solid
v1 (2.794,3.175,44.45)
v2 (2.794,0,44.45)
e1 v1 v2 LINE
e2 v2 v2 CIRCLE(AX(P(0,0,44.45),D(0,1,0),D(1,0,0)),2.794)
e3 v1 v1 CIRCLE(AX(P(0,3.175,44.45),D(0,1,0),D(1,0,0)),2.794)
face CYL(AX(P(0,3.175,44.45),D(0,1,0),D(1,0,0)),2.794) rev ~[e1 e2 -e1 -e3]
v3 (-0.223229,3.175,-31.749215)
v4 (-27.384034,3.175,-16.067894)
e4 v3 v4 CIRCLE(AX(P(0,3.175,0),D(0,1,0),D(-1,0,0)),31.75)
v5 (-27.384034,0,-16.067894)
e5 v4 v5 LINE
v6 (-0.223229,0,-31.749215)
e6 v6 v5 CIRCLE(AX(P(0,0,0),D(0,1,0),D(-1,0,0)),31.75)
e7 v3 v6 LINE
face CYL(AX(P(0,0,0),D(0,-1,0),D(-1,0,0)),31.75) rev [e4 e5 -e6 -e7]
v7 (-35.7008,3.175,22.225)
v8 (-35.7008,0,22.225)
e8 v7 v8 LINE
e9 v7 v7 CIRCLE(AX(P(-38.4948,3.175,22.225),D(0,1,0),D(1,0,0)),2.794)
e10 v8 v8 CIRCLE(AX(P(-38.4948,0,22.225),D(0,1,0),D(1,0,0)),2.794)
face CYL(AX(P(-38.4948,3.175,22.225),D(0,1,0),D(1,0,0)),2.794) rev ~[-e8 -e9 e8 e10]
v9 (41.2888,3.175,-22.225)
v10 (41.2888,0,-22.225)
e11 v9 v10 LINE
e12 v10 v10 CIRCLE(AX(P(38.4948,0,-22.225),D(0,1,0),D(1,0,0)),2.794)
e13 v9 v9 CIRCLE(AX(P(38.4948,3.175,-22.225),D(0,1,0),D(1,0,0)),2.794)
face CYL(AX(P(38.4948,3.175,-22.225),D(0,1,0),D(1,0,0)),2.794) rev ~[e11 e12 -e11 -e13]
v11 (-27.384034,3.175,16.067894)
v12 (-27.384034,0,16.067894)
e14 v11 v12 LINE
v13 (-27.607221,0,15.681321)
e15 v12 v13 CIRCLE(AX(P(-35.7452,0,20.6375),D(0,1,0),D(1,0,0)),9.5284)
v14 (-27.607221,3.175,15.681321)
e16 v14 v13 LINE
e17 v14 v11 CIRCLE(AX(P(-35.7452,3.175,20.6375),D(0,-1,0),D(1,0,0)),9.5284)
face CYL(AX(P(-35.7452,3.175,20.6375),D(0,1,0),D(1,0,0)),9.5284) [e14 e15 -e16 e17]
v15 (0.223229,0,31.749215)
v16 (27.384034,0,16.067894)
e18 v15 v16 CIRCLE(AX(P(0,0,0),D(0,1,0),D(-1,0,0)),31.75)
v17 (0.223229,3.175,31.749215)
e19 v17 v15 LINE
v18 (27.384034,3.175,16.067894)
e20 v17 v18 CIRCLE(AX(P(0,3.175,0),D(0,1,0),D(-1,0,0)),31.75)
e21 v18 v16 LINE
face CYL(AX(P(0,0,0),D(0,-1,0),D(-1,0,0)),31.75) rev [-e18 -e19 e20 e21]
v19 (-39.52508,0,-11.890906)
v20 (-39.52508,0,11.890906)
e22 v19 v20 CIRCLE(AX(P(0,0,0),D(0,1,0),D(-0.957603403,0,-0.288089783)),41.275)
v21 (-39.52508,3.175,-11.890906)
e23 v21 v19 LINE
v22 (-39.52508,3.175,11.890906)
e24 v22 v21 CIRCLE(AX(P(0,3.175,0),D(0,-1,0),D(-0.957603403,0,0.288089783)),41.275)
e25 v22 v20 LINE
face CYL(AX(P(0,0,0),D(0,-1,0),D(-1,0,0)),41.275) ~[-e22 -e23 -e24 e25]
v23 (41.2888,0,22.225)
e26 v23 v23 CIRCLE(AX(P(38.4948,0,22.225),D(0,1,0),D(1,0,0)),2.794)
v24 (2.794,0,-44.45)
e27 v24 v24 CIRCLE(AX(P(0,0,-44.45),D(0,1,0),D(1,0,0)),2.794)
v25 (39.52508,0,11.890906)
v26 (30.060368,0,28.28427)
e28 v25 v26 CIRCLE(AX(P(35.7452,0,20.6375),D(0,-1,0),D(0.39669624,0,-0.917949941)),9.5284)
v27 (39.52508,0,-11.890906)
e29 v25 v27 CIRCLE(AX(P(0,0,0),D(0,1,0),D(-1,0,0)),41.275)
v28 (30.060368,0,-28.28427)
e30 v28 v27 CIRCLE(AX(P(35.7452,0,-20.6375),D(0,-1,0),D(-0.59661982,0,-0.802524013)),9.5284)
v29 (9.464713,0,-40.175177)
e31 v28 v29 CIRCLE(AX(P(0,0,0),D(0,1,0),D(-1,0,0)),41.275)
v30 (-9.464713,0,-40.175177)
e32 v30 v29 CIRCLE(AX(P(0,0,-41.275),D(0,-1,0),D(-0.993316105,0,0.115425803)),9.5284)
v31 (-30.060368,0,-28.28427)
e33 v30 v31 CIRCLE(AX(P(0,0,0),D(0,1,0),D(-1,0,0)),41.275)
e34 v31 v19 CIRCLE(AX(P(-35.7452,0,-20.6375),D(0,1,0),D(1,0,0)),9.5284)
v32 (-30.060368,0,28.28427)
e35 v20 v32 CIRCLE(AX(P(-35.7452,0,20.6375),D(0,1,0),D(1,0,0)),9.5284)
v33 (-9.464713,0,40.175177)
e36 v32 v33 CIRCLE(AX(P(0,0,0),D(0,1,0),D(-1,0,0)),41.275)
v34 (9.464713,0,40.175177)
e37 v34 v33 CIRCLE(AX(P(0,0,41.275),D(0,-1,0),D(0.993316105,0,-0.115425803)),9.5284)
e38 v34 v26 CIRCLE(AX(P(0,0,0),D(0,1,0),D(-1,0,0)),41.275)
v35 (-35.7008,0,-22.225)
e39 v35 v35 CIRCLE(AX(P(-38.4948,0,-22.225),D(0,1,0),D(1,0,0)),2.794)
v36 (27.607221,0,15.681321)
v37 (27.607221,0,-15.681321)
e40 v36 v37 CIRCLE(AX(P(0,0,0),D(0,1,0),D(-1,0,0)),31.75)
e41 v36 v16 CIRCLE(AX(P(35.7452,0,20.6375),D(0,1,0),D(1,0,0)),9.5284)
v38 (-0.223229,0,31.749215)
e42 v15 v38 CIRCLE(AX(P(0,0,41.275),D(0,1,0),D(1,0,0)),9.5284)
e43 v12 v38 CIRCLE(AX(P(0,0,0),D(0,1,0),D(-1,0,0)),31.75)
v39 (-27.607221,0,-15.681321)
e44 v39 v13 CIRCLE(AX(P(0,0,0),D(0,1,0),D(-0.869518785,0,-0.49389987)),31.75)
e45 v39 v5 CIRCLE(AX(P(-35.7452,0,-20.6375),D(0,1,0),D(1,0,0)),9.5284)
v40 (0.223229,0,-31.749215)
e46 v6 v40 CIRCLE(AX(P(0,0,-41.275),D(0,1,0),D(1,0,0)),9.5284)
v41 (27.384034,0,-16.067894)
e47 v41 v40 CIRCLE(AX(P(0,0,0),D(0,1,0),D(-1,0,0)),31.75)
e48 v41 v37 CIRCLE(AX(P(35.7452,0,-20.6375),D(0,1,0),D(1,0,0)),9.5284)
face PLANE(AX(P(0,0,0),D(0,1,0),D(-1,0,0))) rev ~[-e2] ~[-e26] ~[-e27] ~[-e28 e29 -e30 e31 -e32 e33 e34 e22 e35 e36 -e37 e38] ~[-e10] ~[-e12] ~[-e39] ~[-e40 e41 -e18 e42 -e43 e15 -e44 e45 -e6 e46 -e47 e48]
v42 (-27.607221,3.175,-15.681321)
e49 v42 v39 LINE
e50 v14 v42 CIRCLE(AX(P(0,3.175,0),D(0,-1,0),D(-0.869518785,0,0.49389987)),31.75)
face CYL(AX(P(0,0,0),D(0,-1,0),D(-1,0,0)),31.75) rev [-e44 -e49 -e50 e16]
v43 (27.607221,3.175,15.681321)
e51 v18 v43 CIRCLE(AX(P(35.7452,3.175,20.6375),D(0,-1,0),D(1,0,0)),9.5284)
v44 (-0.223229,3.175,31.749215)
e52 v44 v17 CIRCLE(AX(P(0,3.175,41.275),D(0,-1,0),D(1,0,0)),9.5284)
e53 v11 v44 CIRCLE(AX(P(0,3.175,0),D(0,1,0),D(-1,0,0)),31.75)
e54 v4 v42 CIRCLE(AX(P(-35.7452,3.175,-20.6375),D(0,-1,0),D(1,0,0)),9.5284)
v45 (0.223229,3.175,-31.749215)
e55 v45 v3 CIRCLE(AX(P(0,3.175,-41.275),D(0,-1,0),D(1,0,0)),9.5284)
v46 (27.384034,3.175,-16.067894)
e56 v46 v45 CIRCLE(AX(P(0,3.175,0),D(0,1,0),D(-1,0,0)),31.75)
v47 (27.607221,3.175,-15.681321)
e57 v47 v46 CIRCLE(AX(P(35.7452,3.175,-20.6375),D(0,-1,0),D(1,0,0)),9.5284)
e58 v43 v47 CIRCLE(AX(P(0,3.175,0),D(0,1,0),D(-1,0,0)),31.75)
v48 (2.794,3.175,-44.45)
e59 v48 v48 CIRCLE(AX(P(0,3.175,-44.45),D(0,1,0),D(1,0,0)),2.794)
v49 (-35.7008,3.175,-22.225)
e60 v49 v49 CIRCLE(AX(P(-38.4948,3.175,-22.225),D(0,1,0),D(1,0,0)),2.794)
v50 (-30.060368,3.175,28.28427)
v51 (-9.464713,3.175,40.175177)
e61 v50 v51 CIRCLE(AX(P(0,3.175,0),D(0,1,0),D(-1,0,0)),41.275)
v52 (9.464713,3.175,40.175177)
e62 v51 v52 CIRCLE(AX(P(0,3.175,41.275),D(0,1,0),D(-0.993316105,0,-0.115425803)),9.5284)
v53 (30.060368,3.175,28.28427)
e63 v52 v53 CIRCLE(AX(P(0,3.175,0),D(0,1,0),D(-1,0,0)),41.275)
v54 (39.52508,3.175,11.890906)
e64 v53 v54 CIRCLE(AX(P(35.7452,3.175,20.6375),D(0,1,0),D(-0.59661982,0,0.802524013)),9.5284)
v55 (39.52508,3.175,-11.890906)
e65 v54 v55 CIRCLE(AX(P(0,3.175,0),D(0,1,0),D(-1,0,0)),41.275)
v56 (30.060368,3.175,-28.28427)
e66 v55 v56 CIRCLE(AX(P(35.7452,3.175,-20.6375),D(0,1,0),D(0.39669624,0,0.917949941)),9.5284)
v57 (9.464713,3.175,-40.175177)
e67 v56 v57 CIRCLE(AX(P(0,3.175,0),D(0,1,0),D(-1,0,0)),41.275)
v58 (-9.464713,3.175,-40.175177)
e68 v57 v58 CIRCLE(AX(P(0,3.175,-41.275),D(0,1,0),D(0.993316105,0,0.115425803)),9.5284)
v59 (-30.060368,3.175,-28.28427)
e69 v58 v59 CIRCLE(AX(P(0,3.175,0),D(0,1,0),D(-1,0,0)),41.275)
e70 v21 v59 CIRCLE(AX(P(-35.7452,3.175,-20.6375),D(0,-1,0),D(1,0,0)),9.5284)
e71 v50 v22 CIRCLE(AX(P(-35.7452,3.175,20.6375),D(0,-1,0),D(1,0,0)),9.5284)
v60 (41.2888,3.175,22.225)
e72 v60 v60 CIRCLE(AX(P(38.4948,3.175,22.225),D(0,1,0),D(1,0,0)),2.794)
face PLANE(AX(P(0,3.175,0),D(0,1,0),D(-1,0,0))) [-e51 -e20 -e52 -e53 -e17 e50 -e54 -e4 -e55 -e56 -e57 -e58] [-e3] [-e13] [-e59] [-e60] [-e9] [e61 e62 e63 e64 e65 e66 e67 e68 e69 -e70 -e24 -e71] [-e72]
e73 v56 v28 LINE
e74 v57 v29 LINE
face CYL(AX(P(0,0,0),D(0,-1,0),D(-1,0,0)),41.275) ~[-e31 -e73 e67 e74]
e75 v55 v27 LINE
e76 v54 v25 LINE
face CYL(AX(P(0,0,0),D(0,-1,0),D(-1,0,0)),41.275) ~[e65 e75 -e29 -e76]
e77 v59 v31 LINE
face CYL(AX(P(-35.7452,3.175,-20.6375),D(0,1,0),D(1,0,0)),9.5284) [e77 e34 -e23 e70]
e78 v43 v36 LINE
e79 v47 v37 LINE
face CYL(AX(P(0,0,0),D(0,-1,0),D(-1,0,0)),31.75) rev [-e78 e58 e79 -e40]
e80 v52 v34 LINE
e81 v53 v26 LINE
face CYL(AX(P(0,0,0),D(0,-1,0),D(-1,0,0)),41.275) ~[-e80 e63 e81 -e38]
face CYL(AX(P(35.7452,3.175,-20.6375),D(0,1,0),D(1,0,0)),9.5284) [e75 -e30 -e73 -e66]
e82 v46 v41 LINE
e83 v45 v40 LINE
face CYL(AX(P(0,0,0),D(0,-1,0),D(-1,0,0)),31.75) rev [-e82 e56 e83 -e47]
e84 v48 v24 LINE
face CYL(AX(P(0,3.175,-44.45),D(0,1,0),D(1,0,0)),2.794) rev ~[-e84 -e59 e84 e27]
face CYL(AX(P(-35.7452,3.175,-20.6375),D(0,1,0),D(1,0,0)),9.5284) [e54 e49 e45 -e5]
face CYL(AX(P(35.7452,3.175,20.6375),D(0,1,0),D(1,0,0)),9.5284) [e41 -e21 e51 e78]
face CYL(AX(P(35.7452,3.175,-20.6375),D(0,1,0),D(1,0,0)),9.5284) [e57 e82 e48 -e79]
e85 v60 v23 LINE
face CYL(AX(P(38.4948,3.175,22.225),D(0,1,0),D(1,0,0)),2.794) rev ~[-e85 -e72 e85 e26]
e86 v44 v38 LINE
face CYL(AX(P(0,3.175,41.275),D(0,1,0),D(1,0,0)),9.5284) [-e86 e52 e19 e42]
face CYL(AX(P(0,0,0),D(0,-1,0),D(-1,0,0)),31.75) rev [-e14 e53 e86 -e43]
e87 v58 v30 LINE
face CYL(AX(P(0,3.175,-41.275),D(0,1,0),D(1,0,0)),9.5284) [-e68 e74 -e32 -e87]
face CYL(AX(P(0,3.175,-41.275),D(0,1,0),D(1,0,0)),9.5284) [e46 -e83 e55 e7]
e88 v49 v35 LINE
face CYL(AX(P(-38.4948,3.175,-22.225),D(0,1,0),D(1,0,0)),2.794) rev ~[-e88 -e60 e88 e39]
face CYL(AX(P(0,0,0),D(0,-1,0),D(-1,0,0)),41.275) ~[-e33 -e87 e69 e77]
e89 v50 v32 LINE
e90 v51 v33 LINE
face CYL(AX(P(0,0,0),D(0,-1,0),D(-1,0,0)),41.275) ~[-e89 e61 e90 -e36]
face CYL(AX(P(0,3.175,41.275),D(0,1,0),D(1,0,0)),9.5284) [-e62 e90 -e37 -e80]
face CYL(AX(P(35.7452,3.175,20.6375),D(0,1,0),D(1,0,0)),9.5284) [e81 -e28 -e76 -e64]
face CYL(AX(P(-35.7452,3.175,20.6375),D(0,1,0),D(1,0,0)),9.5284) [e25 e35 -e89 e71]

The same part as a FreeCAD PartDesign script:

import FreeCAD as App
import Part
import Sketcher

V = App.Vector
Q = App.Units.Quantity

doc = App.newDocument("Part")
body = doc.addObject("PartDesign::Body", "Body")

sketch1 = doc.addObject("Sketcher::SketchObject", "Sketch")
body.addObject(sketch1)
sketch1.AttachmentSupport = (doc.XZ_Plane, [""])
sketch1.MapMode = "FlatFace"
sketch1.addGeometry([
    Part.Circle(V(0, 0, 0), V(0, 0, 1), 41),
    Part.Circle(V(0, 0, 0), V(0, 0, 1), 32),
], False)
sketch1.addConstraint([
    Sketcher.Constraint("Coincident", 0, 3, -1, 1),
    Sketcher.Constraint("Coincident", 1, 3, -1, 1),
    Sketcher.Constraint("Diameter", 1, Q("2.5 in")),
    Sketcher.Constraint("Diameter", 0, Q("3.25 in")),
])
pad1 = doc.addObject("PartDesign::Pad", "Pad")
body.addObject(pad1)
pad1.Profile = sketch1
pad1.Length = Q("0.125 in")
pad1.Reversed = True

sketch2 = doc.addObject("Sketcher::SketchObject", "Sketch001")
body.addObject(sketch2)
sketch2.AttachmentSupport = (doc.XZ_Plane, [""])
sketch2.MapMode = "FlatFace"
sketch2.AttachmentOffset = App.Placement(V(0, 0, -0.125 * 25.4), App.Rotation())
sketch2.addGeometry([
    Part.Circle(V(36, -21, 0), V(0, 0, 1), 10),
    Part.Circle(V(36, 21, 0), V(0, 0, 1), 10),
    Part.Circle(V(0, -41, 0), V(0, 0, 1), 10),
    Part.Circle(V(0, 41, 0), V(0, 0, 1), 10),
    Part.Circle(V(-36, -21, 0), V(0, 0, 1), 10),
    Part.Circle(V(-36, 21, 0), V(0, 0, 1), 10),
], False)
sketch2.addConstraint([
    Sketcher.Constraint("Equal", 0, 1),
    Sketcher.Constraint("Equal", 1, 2),
    Sketcher.Constraint("Equal", 2, 3),
    Sketcher.Constraint("Equal", 3, 4),
    Sketcher.Constraint("Equal", 4, 5),
    Sketcher.Constraint("Symmetric", 2, 3, 3, 3, -1, 1),
    Sketcher.Constraint("Symmetric", 1, 3, 4, 3, -1, 1),
    Sketcher.Constraint("Symmetric", 0, 3, 5, 3, -1, 1),
    Sketcher.Constraint("Symmetric", 0, 3, 4, 3, -2),
    Sketcher.Constraint("PointOnObject", 2, 3, -2),
    Sketcher.Constraint("Diameter", 0, 19.0568),
    Sketcher.Constraint("DistanceY", 2, 3, 3, 3, Q("3.25 in")),
    Sketcher.Constraint("DistanceY", 0, 3, -1, 1, Q("0.8125 in")),
    Sketcher.Constraint("DistanceX", -1, 1, 0, 3, Q("1.4073 in")),
])
pad2 = doc.addObject("PartDesign::Pad", "Pad001")
body.addObject(pad2)
pad2.Profile = sketch2
pad2.Length = Q("0.125 in")

sketch3 = doc.addObject("Sketcher::SketchObject", "Sketch002")
body.addObject(sketch3)
sketch3.AttachmentSupport = (doc.XZ_Plane, [""])
sketch3.MapMode = "FlatFace"
sketch3.AttachmentOffset = App.Placement(V(0, 0, -0.125 * 25.4), App.Rotation())
sketch3.addGeometry([
    Part.Circle(V(0, 44.5, 0), V(0, 0, 1), 2.8),
    Part.Circle(V(38.5, 22.2, 0), V(0, 0, 1), 2.8),
    Part.Circle(V(38.5, -22.2, 0), V(0, 0, 1), 2.8),
    Part.Circle(V(0, -44.5, 0), V(0, 0, 1), 2.8),
    Part.Circle(V(-38.5, -22.2, 0), V(0, 0, 1), 2.8),
    Part.Circle(V(-38.5, 22.2, 0), V(0, 0, 1), 2.8),
], False)
sketch3.addConstraint([
    Sketcher.Constraint("Equal", 0, 1),
    Sketcher.Constraint("Equal", 1, 2),
    Sketcher.Constraint("Equal", 2, 3),
    Sketcher.Constraint("Equal", 3, 4),
    Sketcher.Constraint("Equal", 4, 5),
    Sketcher.Constraint("Symmetric", 0, 3, 3, 3, -1, 1),
    Sketcher.Constraint("Symmetric", 1, 3, 4, 3, -1, 1),
    Sketcher.Constraint("Symmetric", 2, 3, 5, 3, -1, 1),
    Sketcher.Constraint("Symmetric", 2, 3, 4, 3, -2),
    Sketcher.Constraint("PointOnObject", 0, 3, -2),
    Sketcher.Constraint("Diameter", 0, Q("0.22 in")),
    Sketcher.Constraint("DistanceY", 3, 3, 0, 3, Q("3.5 in")),
    Sketcher.Constraint("DistanceY", 2, 3, 1, 3, Q("1.75 in")),
    Sketcher.Constraint("DistanceX", -1, 1, 1, 3, 38.4948),
])
pocket1 = doc.addObject("PartDesign::Pocket", "Pocket")
body.addObject(pocket1)
pocket1.Profile = sketch3
pocket1.Length = Q("0.125 in")
pocket1.Reversed = True

doc.recompute()
